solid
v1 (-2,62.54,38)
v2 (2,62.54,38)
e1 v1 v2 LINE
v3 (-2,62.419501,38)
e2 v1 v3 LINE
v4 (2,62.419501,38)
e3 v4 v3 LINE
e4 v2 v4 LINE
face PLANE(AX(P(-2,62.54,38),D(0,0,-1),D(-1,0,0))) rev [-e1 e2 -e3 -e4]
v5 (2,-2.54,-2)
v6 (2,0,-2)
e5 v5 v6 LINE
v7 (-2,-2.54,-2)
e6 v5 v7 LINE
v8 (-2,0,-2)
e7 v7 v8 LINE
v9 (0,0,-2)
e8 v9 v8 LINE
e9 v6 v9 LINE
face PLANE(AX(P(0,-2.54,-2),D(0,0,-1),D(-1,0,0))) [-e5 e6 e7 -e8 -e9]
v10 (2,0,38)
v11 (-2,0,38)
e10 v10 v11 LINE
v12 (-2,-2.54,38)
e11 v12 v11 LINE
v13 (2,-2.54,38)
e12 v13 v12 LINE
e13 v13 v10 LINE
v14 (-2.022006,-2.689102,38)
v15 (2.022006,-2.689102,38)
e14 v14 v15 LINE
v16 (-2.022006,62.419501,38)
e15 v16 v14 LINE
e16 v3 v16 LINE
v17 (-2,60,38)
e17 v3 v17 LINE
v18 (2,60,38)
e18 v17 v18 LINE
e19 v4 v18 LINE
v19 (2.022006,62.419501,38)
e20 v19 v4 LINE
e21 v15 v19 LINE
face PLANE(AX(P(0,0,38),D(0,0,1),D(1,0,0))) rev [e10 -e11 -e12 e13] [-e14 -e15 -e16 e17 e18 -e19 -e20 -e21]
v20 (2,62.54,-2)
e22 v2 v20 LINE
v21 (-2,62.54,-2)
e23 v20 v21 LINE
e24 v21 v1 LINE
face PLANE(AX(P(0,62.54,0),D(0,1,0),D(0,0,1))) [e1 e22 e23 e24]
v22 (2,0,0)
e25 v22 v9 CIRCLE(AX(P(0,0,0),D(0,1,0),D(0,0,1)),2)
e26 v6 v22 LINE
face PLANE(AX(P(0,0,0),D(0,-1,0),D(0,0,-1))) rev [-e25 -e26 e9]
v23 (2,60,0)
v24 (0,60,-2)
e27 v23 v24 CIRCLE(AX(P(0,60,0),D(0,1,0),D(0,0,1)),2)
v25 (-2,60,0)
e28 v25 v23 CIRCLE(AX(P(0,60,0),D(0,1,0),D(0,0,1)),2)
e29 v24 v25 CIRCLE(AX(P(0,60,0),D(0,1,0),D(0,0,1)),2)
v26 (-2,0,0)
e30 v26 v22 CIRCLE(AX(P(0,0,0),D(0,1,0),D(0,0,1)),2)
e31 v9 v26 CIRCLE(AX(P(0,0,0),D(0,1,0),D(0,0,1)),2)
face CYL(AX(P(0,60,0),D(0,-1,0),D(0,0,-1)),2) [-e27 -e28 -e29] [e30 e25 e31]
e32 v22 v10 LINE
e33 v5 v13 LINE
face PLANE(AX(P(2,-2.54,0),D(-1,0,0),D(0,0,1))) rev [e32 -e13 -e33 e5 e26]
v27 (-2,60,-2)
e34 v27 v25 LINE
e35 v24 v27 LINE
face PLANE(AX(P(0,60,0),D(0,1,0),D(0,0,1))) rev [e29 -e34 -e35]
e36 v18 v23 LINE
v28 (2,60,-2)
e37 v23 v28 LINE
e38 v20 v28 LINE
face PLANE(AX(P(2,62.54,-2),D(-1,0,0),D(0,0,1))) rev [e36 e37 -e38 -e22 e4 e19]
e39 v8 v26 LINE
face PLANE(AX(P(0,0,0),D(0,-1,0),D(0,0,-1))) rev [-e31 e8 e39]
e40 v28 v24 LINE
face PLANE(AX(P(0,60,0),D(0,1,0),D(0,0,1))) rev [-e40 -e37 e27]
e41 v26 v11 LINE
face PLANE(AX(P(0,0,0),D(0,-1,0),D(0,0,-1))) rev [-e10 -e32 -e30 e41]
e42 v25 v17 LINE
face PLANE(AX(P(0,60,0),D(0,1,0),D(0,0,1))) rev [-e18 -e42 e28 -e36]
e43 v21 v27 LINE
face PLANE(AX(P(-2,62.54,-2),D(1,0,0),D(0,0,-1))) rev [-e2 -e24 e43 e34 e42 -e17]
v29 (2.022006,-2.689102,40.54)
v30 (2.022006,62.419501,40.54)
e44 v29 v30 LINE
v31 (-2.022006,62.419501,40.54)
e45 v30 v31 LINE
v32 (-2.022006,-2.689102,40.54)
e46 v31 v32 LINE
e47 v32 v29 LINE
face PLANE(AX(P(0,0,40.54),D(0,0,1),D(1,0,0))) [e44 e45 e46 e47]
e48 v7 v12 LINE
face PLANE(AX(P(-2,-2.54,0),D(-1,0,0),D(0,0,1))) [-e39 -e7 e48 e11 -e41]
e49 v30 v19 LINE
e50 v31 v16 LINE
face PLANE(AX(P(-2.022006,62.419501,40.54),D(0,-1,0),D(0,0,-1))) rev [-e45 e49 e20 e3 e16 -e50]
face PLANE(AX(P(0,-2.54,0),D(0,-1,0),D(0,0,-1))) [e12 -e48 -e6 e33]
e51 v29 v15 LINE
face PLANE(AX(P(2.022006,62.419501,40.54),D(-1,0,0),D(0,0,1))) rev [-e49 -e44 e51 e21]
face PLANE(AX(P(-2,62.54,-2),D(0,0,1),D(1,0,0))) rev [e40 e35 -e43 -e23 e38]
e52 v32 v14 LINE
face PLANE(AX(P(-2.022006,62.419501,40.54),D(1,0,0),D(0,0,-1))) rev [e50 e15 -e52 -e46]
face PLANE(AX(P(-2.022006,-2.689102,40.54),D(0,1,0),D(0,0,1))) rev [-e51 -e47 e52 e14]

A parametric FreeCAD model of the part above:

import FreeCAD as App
import Part
import Sketcher

V = App.Vector


def add_polygon(sketch, points):
    """Adds a closed chain of lines whose ends are joined by coincident constraints."""
    first, n = sketch.GeometryCount, len(points)
    for a, b in zip(points, points[1:] + points[:1]):
        sketch.addGeometry(Part.LineSegment(App.Vector(*a, 0), App.Vector(*b, 0)), False)
    for i in range(n):
        sketch.addConstraint(Sketcher.Constraint("Coincident", first + i, 2, first + (i + 1) % n, 1))

doc = App.newDocument("Part")
body = doc.addObject("PartDesign::Body", "Body")

# Sketch on XZ plane
sketch1 = body.newObject("Sketcher::SketchObject", "Sketch")
sketch1.AttachmentSupport = (doc.getObject("XZ_Plane"), [""])
sketch1.MapMode = "FlatFace"
sketch1.addGeometry(Part.Circle(V(0, 0, 0), V(0, 0, 1), 2), False)
sketch1.addConstraint([
    Sketcher.Constraint("Coincident", 0, 3, -1, 1),
    Sketcher.Constraint("Diameter", 0, 4.0),
])
pad1 = body.newObject("PartDesign::Pad", "Pad")
pad1.Profile = sketch1
pad1.Length = 60
pad1.Reversed = True

# Sketch on XZ plane
sketch2 = body.newObject("Sketcher::SketchObject", "Sketch001")
sketch2.AttachmentSupport = (doc.getObject("XZ_Plane"), [""])
sketch2.MapMode = "FlatFace"
add_polygon(sketch2, [(-2, 38), (-2, -2), (2, -2), (2, 38)])  # lines 0-3
sketch2.addConstraint([
    Sketcher.Constraint("Vertical", 0),
    Sketcher.Constraint("Horizontal", 1),
    Sketcher.Constraint("Vertical", 2),
    Sketcher.Constraint("Horizontal", 3),
    Sketcher.Constraint("DistanceX", 1, 1, 1, 2, 4.0),
    Sketcher.Constraint("DistanceY", 0, 2, 0, 1, 40.0),
    Sketcher.Constraint("DistanceX", 0, 2, -1, 1, 2.0),
    Sketcher.Constraint("DistanceY", 0, 2, -1, 1, 2.0),
])
pad2 = body.newObject("PartDesign::Pad", "Pad001")
pad2.Profile = sketch2
pad2.Length = 2.54

# Sketch on XZ plane
sketch3 = body.newObject("Sketcher::SketchObject", "Sketch002")
sketch3.AttachmentSupport = (doc.getObject("XZ_Plane"), [""])
sketch3.MapMode = "FlatFace"
sketch3.AttachmentOffset = App.Placement(V(0, 0, -60), App.Rotation())
add_polygon(sketch3, [(-2, -2), (-2, 38), (2, 38), (2, -2)])  # lines 0-3
sketch3.addConstraint([
    Sketcher.Constraint("Vertical", 0),
    Sketcher.Constraint("Horizontal", 1),
    Sketcher.Constraint("Vertical", 2),
    Sketcher.Constraint("Horizontal", 3),
    Sketcher.Constraint("DistanceX", 1, 1, 1, 2, 4.0),
    Sketcher.Constraint("DistanceY", 0, 1, 0, 2, 40.0),
    Sketcher.Constraint("DistanceX", 0, 2, -1, 1, 2.0),
    Sketcher.Constraint("DistanceY", -1, 1, 0, 2, 38.0),
])
pad3 = body.newObject("PartDesign::Pad", "Pad002")
pad3.Profile = sketch3
pad3.Length = 2.54
pad3.Reversed = True

# Sketch on XY plane
sketch4 = body.newObject("Sketcher::SketchObject", "Sketch003")
sketch4.AttachmentSupport = (doc.getObject("XY_Plane"), [""])
sketch4.MapMode = "FlatFace"
sketch4.AttachmentOffset = App.Placement(V(0, 0, 38), App.Rotation())
add_polygon(sketch4, [(-2, 62.4), (-2, -2.7), (2, -2.7), (2, 62.4)])  # lines 0-3
sketch4.addConstraint([
    Sketcher.Constraint("Vertical", 0),
    Sketcher.Constraint("Horizontal", 1),
    Sketcher.Constraint("Vertical", 2),
    Sketcher.Constraint("Horizontal", 3),
    Sketcher.Constraint("DistanceY", 0, 2, -1, 1, 2.689102),
    Sketcher.Constraint("DistanceY", -1, 1, 2, 2, 62.419501),
    Sketcher.Constraint("DistanceX", 1, 1, 1, 2, 4.044013),
    Sketcher.Constraint("DistanceX", 0, 2, -1, 1, 2.022006),
])
pad4 = body.newObject("PartDesign::Pad", "Pad003")
pad4.Profile = sketch4
pad4.Length = 2.54

doc.recompute()
